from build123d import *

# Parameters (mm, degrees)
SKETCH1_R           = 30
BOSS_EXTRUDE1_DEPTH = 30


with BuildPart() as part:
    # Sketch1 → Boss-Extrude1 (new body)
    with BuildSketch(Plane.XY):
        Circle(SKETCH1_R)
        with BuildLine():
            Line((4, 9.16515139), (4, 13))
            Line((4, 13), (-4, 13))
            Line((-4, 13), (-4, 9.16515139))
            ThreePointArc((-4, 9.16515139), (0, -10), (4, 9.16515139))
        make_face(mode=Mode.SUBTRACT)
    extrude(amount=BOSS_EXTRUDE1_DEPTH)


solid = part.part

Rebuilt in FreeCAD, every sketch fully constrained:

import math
import FreeCAD as App
import Part
import Sketcher

V = App.Vector

doc = App.newDocument("Part")
body = doc.addObject("PartDesign::Body", "Body")

# Sketch on XY plane
sketch1 = body.newObject("Sketcher::SketchObject", "Sketch")
sketch1.AttachmentSupport = (doc.getObject("XY_Plane"), [""])
sketch1.MapMode = "FlatFace"
sketch1.addGeometry([
    Part.Circle(V(0, 0, 0), V(0, 0, 1), 30),  # 0
    Part.LineSegment(V(4, 13, 0), V(4, 9.2, 0)),  # 1
    Part.ArcOfCircle(Part.Circle(V(0, 0, 0), V(0, 0, 1), 10), math.radians(114), math.radians(426)),  # 2
    Part.LineSegment(V(-4, 9.2, 0), V(-4, 13, 0)),  # 3
    Part.LineSegment(V(-4, 13, 0), V(4, 13, 0)),  # 4
], False)
sketch1.addConstraint([
    Sketcher.Constraint("Coincident", 1, 2, 2, 2),
    Sketcher.Constraint("Coincident", 2, 1, 3, 1),
    Sketcher.Constraint("Coincident", 3, 2, 4, 1),
    Sketcher.Constraint("Coincident", 4, 2, 1, 1),
    Sketcher.Constraint("Vertical", 1),
    Sketcher.Constraint("Vertical", 3),
    Sketcher.Constraint("Horizontal", 4),
    Sketcher.Constraint("Coincident", 0, 3, -1, 1),
    Sketcher.Constraint("Coincident", 2, 3, -1, 1),
    Sketcher.Constraint("Horizontal", 1, 2, 2, 1),
    Sketcher.Constraint("Diameter", 0, 60.0),
    Sketcher.Constraint("Radius", 2, 10.0),
    Sketcher.Constraint("DistanceX", 4, 1, 4, 2, 8.0),
    Sketcher.Constraint("DistanceY", -1, 1, 3, 2, 13.0),
])
pad1 = body.newObject("PartDesign::Pad", "Pad")
pad1.Profile = sketch1
pad1.Length = 30

doc.recompute()
